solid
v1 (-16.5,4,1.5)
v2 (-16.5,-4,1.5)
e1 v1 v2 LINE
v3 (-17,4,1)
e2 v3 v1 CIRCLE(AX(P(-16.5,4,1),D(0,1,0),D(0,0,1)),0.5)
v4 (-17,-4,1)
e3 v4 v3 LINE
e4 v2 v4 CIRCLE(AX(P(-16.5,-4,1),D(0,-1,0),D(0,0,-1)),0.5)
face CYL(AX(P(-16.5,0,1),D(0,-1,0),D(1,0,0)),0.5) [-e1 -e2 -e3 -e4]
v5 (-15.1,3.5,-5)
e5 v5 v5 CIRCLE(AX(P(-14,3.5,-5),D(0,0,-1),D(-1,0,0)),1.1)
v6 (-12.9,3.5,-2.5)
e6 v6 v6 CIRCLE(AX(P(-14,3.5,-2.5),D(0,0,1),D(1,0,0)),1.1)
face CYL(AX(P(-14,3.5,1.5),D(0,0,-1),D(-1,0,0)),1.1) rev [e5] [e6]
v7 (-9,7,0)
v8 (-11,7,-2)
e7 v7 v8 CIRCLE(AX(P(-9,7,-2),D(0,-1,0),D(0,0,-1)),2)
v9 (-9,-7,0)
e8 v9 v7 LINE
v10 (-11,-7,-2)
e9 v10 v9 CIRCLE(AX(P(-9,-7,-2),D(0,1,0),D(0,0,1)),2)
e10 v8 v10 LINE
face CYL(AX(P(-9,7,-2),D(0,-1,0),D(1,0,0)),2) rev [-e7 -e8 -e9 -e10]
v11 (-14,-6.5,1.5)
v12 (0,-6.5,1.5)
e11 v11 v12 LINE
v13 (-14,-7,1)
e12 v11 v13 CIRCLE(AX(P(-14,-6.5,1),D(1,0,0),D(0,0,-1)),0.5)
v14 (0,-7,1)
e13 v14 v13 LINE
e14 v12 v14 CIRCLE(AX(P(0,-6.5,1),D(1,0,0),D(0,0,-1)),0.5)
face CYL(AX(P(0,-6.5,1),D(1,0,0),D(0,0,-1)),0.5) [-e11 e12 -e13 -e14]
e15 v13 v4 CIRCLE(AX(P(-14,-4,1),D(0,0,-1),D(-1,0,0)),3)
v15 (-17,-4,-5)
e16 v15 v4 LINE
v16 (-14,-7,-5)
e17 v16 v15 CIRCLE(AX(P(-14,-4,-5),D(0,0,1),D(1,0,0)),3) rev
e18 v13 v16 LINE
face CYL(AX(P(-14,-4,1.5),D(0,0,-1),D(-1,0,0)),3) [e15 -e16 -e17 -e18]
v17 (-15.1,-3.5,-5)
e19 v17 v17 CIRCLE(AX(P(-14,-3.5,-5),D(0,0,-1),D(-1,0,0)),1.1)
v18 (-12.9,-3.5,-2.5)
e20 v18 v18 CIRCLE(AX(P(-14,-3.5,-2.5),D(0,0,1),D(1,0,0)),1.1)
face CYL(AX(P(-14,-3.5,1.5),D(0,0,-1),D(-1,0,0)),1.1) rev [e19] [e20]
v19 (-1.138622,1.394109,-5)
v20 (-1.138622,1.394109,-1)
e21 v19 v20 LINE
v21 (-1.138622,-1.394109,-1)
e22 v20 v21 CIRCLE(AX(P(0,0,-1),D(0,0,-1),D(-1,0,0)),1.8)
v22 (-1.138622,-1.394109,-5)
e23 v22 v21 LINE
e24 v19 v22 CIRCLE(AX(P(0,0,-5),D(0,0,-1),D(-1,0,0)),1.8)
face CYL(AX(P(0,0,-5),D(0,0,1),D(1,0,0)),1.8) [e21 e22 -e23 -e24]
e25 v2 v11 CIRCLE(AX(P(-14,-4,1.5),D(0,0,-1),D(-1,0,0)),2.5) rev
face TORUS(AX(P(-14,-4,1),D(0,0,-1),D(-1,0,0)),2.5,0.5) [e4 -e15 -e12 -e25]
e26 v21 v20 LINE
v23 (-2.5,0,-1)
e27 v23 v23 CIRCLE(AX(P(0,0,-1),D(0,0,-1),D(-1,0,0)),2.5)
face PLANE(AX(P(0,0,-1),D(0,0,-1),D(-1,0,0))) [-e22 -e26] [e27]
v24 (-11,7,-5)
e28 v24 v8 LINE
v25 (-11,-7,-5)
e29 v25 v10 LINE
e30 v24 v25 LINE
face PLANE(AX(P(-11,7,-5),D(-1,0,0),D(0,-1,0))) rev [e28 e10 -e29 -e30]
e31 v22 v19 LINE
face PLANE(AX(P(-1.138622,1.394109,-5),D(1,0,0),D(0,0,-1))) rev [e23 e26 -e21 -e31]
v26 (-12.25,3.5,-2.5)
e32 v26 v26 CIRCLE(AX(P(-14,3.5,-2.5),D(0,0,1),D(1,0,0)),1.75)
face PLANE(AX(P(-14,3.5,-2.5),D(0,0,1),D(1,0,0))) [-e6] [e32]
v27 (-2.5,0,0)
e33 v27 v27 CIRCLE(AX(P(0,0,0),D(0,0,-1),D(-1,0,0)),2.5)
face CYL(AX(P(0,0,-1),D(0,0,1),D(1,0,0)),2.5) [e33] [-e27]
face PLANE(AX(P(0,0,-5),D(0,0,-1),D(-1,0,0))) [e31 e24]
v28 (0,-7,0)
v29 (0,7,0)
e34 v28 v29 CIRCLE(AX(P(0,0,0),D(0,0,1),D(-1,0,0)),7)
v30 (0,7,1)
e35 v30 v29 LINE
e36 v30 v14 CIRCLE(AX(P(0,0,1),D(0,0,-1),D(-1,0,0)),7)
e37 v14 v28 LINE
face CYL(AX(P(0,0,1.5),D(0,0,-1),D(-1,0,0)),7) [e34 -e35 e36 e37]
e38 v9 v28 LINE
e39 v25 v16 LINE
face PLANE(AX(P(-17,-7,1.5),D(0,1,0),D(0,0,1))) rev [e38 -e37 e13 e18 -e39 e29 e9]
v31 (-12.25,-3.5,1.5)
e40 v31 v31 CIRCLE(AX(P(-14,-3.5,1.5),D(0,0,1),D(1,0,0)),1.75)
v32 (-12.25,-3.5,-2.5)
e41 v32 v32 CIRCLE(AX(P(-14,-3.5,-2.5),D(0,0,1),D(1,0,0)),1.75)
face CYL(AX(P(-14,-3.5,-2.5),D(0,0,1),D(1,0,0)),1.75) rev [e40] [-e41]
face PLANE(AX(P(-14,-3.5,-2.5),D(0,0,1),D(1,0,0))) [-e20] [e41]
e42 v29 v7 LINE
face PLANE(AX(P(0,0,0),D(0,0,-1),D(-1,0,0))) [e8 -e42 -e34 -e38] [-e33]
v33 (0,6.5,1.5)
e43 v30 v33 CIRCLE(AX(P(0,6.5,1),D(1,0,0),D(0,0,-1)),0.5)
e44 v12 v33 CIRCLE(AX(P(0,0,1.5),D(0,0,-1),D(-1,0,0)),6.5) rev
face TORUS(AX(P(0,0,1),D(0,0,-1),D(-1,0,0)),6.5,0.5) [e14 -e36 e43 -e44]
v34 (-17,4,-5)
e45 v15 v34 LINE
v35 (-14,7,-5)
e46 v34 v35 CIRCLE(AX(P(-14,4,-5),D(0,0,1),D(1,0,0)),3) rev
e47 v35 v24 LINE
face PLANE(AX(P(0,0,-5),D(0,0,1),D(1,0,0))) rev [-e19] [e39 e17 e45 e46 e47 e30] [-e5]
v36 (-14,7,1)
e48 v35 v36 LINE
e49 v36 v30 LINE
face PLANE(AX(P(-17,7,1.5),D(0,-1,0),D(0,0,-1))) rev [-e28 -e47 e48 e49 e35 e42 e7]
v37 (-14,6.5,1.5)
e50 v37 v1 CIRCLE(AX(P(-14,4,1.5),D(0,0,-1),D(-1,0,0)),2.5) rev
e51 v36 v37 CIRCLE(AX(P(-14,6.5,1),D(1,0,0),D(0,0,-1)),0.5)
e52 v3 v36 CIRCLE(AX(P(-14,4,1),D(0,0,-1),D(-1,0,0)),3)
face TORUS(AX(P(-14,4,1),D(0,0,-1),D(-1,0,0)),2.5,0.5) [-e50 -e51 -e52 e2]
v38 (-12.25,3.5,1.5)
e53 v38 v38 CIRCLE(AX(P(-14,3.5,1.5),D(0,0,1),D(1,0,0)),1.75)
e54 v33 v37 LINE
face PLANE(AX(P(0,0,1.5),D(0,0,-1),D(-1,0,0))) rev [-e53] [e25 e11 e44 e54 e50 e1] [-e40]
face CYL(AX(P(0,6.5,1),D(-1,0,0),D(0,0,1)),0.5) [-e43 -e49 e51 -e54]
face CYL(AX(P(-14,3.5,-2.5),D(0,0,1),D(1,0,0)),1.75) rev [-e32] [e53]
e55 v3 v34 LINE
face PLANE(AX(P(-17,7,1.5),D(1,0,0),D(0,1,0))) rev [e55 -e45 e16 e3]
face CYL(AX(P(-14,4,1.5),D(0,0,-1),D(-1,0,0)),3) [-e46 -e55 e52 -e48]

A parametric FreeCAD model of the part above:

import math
import FreeCAD as App
import Part
import Sketcher


def edges_at(feature, points):
    """Names of the edges that pass closest to the given points."""
    edges = feature.Shape.Edges
    near = lambda p: min(range(len(edges)), key=lambda i: edges[i].distToShape(Part.Vertex(*p))[0])
    return sorted({f"Edge{near(p) + 1}" for p in points})


def add_polygon(sketch, points):
    """Adds a closed chain of lines whose ends are joined by coincident constraints."""
    first, n = sketch.GeometryCount, len(points)
    for a, b in zip(points, points[1:] + points[:1]):
        sketch.addGeometry(Part.LineSegment(App.Vector(*a, 0), App.Vector(*b, 0)), False)
    for i in range(n):
        sketch.addConstraint(Sketcher.Constraint("Coincident", first + i, 2, first + (i + 1) % n, 1))

doc = App.newDocument("Part")
body = doc.addObject("PartDesign::Body", "Body")

sketch1 = body.newObject("Sketcher::SketchObject", "Sketch")
sketch1.AttachmentSupport = (doc.getObject("XY_Plane"), [""])
sketch1.MapMode = "FlatFace"
sketch1.addGeometry([
    Part.LineSegment(App.Vector(0, 7, 0), App.Vector(-17, 7, 0)),
    Part.LineSegment(App.Vector(-17, 7, 0), App.Vector(-17, -7, 0)),
    Part.LineSegment(App.Vector(-17, -7, 0), App.Vector(0, -7, 0)),
    Part.ArcOfCircle(Part.Circle(App.Vector(0, 0, 0), App.Vector(0, 0, 1), 7), math.radians(-90), math.radians(90)),
    Part.Circle(App.Vector(-14, -3.5, 0), App.Vector(0, 0, 1), 1.1),
    Part.Circle(App.Vector(-14, 3.5, 0), App.Vector(0, 0, 1), 1.1),
], False)
sketch1.addConstraint([
    Sketcher.Constraint("Coincident", 0, 2, 1, 1),
    Sketcher.Constraint("Coincident", 1, 2, 2, 1),
    Sketcher.Constraint("Tangent", 2, 2, 3, 1),
    Sketcher.Constraint("Tangent", 3, 2, 0, 1),
    Sketcher.Constraint("Horizontal", 0),
    Sketcher.Constraint("Vertical", 1),
    Sketcher.Constraint("Horizontal", 2),
    Sketcher.Constraint("Coincident", 3, 3, -1, 1),
    Sketcher.Constraint("Equal", 4, 5),
    Sketcher.Constraint("Symmetric", 4, 3, 5, 3, -1),
    Sketcher.Constraint("Radius", 3, 7.0),
    Sketcher.Constraint("Diameter", 4, 2.2),
    Sketcher.Constraint("DistanceX", 0, 2, 0, 1, 17.0),
    Sketcher.Constraint("DistanceX", 4, 3, -1, 1, 14.0),
    Sketcher.Constraint("DistanceY", 4, 3, 5, 3, 7.0),
])
pad1 = body.newObject("PartDesign::Pad", "Pad")
pad1.Profile = sketch1
pad1.Length = 1.5

sketch2 = body.newObject("Sketcher::SketchObject", "Sketch001")
sketch2.AttachmentSupport = (doc.getObject("XY_Plane"), [""])
sketch2.MapMode = "FlatFace"
sketch2.addGeometry(Part.Circle(App.Vector(0, 0, 0), App.Vector(0, 0, 1), 2.5), False)
sketch2.addConstraint([
    Sketcher.Constraint("Coincident", 0, 3, -1, 1),
    Sketcher.Constraint("Diameter", 0, 5.0),
])
pad2 = body.newObject("PartDesign::Pad", "Pad001")
pad2.Profile = sketch2
pad2.Length = 1
pad2.Reversed = True

sketch3 = body.newObject("Sketcher::SketchObject", "Sketch002")
sketch3.AttachmentSupport = (doc.getObject("XY_Plane"), [""])
sketch3.MapMode = "FlatFace"
sketch3.AttachmentOffset = App.Placement(App.Vector(0, 0, -1), App.Rotation())
sketch3.addGeometry([
    Part.LineSegment(App.Vector(-1.1, -1.4, 0), App.Vector(-1.1, 1.4, 0)),
    Part.ArcOfCircle(Part.Circle(App.Vector(0, 0, 0), App.Vector(0, 0, 1), 1.8), math.radians(-129), math.radians(129)),
], False)
sketch3.addConstraint([
    Sketcher.Constraint("Coincident", 0, 1, 1, 1),
    Sketcher.Constraint("Coincident", 1, 2, 0, 2),
    Sketcher.Constraint("Vertical", 0),
    Sketcher.Constraint("Coincident", 1, 3, -1, 1),
    Sketcher.Constraint("Radius", 1, 1.8),
    Sketcher.Constraint("DistanceY", 0, 1, 0, 2, 2.788218),
])
pad3 = body.newObject("PartDesign::Pad", "Pad002")
pad3.Profile = sketch3
pad3.Length = 4
pad3.Reversed = True

sketch4 = body.newObject("Sketcher::SketchObject", "Sketch003")
sketch4.AttachmentSupport = (doc.getObject("XY_Plane"), [""])
sketch4.MapMode = "FlatFace"
sketch4.AttachmentOffset = App.Placement(App.Vector(0, 0, -5), App.Rotation())
add_polygon(sketch4, [(-11, 7), (-11, -7), (-17, -7), (-17, 7)])
sketch4.addGeometry(Part.Circle(App.Vector(-14, -3.5, 0), App.Vector(0, 0, 1), 1.1), False)
sketch4.addGeometry(Part.Circle(App.Vector(-14, 3.5, 0), App.Vector(0, 0, 1), 1.1), False)
sketch4.addConstraint([
    Sketcher.Constraint("Vertical", 0),
    Sketcher.Constraint("Horizontal", 1),
    Sketcher.Constraint("Vertical", 2),
    Sketcher.Constraint("Horizontal", 3),
    Sketcher.Constraint("Equal", 4, 5),
    Sketcher.Constraint("Symmetric", 4, 3, 5, 3, -1),
    Sketcher.Constraint("Diameter", 4, 2.2),
    Sketcher.Constraint("DistanceX", 1, 2, 1, 1, 6.0),
    Sketcher.Constraint("DistanceY", 0, 2, 0, 1, 14.0),
    Sketcher.Constraint("DistanceX", 4, 3, -1, 1, 14.0),
    Sketcher.Constraint("DistanceX", 0, 2, -1, 1, 11.0),
    Sketcher.Constraint("DistanceY", 0, 2, -1, 1, 7.0),
    Sketcher.Constraint("DistanceY", 4, 3, 5, 3, 7.0),
])
pad4 = body.newObject("PartDesign::Pad", "Pad003")
pad4.Profile = sketch4
pad4.Length = 5
doc.recompute()

fillet = body.newObject("PartDesign::Fillet", "Fillet")
fillet.Base = (pad4, edges_at(pad4, [(-17, -7, -2.5), (-17, 7, -2.5)]))
fillet.Radius = 3
doc.recompute()

fillet2 = body.newObject("PartDesign::Fillet", "Fillet001")
fillet2.Base = (fillet, edges_at(fillet, [
    (7, 0, 1.5),
    (-17, 0, 1.5),
    (-7, -7, 1.5),
    (-16.121, -6.121, 1.5),
    (-16.121, 6.121, 1.5),
    (-7, 7, 1.5),
]))
fillet2.Radius = 0.5

sketch5 = body.newObject("Sketcher::SketchObject", "Sketch004")
sketch5.AttachmentSupport = (doc.getObject("XY_Plane"), [""])
sketch5.MapMode = "FlatFace"
sketch5.AttachmentOffset = App.Placement(App.Vector(0, 0, 1.5), App.Rotation())
sketch5.addGeometry([
    Part.Circle(App.Vector(-14, 3.5, 0), App.Vector(0, 0, 1), 1.8),
    Part.Circle(App.Vector(-14, -3.5, 0), App.Vector(0, 0, 1), 1.8),
], False)
sketch5.addConstraint([
    Sketcher.Constraint("Equal", 0, 1),
    Sketcher.Constraint("Symmetric", 0, 3, 1, 3, -1),
    Sketcher.Constraint("Diameter", 0, 3.5),
    Sketcher.Constraint("DistanceX", 0, 3, -1, 1, 14.0),
    Sketcher.Constraint("DistanceY", 1, 3, 0, 3, 7.0),
])
pocket1 = body.newObject("PartDesign::Pocket", "Pocket")
pocket1.Profile = sketch5
pocket1.Length = 4
doc.recompute()

fillet3 = body.newObject("PartDesign::Fillet", "Fillet002")
fillet3.Base = (pocket1, edges_at(pocket1, [(-11, 0, 0)]))
fillet3.Radius = 2

doc.recompute()
